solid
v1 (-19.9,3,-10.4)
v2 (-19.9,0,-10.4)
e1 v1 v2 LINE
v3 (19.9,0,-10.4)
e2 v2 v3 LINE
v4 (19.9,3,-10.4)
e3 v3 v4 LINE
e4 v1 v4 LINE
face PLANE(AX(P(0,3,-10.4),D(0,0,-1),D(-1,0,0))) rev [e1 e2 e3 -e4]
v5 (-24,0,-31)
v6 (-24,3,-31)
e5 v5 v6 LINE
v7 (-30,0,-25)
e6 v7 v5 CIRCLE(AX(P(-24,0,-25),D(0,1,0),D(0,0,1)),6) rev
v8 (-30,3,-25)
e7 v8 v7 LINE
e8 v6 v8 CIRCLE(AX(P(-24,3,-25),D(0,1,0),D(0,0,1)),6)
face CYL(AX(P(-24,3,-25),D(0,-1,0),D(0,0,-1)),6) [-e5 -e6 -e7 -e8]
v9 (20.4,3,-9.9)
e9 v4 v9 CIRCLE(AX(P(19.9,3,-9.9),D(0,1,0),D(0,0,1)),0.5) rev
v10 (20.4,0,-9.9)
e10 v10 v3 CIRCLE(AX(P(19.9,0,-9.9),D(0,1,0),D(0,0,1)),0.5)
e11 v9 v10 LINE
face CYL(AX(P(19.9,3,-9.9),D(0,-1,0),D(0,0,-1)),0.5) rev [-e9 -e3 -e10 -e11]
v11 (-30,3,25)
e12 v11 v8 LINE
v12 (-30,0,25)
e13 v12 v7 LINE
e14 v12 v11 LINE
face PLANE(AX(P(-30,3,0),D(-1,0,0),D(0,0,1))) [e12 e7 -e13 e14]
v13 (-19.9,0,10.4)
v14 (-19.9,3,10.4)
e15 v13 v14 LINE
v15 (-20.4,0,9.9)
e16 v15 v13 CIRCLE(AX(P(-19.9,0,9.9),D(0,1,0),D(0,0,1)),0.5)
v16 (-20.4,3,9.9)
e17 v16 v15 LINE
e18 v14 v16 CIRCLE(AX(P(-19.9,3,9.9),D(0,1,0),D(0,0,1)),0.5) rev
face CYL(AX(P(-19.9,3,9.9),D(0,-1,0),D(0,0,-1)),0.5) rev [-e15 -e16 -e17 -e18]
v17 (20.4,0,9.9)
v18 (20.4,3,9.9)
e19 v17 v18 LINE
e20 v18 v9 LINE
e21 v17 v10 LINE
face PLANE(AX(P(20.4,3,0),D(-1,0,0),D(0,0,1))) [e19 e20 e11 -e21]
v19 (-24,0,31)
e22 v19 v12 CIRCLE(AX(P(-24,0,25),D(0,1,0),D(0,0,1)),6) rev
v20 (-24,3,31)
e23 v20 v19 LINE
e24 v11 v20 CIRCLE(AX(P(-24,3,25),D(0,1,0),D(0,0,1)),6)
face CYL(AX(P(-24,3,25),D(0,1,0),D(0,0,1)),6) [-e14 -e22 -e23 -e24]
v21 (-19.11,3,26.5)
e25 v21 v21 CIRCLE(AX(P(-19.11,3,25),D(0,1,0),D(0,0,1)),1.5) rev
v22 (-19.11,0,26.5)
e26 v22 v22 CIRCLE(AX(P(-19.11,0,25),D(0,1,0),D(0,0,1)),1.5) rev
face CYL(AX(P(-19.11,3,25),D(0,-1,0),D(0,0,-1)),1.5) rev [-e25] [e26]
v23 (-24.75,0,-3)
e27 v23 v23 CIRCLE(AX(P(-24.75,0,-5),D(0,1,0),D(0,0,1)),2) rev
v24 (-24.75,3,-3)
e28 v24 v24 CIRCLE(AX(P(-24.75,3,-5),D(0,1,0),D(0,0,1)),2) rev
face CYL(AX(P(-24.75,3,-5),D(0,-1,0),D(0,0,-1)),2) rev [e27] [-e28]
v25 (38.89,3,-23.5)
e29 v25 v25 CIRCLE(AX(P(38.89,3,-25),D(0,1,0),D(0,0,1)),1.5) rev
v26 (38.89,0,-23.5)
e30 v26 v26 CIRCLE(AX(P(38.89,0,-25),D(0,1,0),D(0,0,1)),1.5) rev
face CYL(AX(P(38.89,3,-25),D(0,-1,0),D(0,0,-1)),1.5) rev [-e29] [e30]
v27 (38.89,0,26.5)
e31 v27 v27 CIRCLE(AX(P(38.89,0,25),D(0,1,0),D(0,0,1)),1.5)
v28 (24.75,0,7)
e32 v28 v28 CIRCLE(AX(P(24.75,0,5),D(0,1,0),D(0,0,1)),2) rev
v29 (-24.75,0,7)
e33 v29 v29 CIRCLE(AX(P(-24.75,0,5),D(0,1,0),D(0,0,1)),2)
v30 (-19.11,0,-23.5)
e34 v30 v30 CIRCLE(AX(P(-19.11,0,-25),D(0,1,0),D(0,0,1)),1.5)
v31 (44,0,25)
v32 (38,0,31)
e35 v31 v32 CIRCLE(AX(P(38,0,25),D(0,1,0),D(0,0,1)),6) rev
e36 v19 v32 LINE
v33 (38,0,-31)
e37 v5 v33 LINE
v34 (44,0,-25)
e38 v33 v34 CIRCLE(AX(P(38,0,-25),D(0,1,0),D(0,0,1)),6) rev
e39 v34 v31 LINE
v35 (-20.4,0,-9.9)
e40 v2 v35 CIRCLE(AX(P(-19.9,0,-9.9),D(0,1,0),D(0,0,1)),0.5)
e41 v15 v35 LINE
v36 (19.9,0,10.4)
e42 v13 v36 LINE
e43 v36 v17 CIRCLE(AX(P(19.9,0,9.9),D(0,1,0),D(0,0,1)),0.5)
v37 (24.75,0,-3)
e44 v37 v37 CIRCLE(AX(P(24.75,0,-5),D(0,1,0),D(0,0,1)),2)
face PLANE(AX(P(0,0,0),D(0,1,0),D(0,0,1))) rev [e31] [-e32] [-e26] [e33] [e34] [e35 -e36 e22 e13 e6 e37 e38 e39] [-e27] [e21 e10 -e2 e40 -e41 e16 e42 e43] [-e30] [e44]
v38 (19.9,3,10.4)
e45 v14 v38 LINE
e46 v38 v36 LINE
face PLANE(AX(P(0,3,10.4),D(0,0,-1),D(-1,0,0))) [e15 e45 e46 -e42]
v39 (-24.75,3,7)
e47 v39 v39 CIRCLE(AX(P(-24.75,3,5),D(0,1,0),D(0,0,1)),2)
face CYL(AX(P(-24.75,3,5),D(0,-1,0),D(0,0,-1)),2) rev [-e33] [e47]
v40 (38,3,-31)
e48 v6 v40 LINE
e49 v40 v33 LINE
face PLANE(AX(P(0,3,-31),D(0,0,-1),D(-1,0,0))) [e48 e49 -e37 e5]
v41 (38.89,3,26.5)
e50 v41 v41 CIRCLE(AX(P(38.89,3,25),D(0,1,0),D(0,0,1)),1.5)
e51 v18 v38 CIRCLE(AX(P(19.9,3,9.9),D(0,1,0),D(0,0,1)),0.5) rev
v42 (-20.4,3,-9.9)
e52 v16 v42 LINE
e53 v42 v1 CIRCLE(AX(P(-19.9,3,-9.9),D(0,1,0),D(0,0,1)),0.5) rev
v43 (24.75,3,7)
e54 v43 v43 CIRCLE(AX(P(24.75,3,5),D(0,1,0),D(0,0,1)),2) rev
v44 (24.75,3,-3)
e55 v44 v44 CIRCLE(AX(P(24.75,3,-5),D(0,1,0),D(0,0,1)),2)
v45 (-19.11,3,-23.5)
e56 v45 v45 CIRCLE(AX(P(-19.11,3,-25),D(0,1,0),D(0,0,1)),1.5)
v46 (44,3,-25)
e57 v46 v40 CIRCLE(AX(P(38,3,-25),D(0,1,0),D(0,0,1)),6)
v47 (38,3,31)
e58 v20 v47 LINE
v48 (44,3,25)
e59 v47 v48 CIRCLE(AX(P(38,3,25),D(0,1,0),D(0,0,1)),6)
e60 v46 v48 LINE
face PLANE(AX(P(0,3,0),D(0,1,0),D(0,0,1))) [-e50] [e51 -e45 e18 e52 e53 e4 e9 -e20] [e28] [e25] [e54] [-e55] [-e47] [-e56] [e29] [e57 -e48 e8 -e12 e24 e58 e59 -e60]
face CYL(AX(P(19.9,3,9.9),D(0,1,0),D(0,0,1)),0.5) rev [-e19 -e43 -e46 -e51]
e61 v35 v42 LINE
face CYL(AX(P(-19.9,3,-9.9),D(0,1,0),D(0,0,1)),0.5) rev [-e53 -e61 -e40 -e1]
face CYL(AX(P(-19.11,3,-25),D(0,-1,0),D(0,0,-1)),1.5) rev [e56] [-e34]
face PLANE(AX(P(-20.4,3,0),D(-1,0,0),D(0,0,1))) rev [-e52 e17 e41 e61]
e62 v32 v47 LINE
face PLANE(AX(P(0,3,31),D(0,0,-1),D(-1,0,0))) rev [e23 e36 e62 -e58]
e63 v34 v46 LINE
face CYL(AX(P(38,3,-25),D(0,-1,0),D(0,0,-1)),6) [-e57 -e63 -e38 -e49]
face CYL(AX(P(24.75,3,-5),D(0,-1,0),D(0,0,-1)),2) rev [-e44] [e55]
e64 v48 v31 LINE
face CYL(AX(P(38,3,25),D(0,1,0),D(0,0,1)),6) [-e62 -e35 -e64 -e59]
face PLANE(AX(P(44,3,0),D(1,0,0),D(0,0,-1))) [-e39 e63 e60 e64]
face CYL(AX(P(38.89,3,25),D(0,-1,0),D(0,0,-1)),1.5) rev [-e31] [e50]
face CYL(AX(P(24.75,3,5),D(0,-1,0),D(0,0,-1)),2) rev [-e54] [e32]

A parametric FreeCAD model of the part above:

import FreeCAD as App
import Part
import Sketcher


def edges_at(feature, points):
    """Names of the edges that pass closest to the given points."""
    edges = feature.Shape.Edges
    near = lambda p: min(range(len(edges)), key=lambda i: edges[i].distToShape(Part.Vertex(*p))[0])
    return sorted({f"Edge{near(p) + 1}" for p in points})


def add_polygon(sketch, points):
    """Adds a closed chain of lines whose ends are joined by coincident constraints."""
    first, n = sketch.GeometryCount, len(points)
    for a, b in zip(points, points[1:] + points[:1]):
        sketch.addGeometry(Part.LineSegment(App.Vector(*a, 0), App.Vector(*b, 0)), False)
    for i in range(n):
        sketch.addConstraint(Sketcher.Constraint("Coincident", first + i, 2, first + (i + 1) % n, 1))

doc = App.newDocument("Part")
body = doc.addObject("PartDesign::Body", "Body")

sketch1 = doc.addObject("Sketcher::SketchObject", "Sketch")
body.addObject(sketch1)
sketch1.AttachmentSupport = (doc.XZ_Plane, [""])
sketch1.MapMode = "FlatFace"
add_polygon(sketch1, [(-30, -31), (-30, 31), (44, 31), (44, -31)])
sketch1.addGeometry(Part.Circle(App.Vector(-19.1, 25, 0), App.Vector(0, 0, 1), 1.5), False)
sketch1.addGeometry(Part.Circle(App.Vector(-24.8, 5, 0), App.Vector(0, 0, 1), 2), False)
sketch1.addGeometry(Part.Circle(App.Vector(24.8, 5, 0), App.Vector(0, 0, 1), 2), False)
sketch1.addGeometry(Part.Circle(App.Vector(-24.8, -5, 0), App.Vector(0, 0, 1), 2), False)
add_polygon(sketch1, [(20.4, 10.4), (-20.4, 10.4), (-20.4, -10.4), (20.4, -10.4)])
sketch1.addGeometry(Part.Circle(App.Vector(-19.1, -25, 0), App.Vector(0, 0, 1), 1.5), False)
sketch1.addGeometry(Part.Circle(App.Vector(24.8, -5, 0), App.Vector(0, 0, 1), 2), False)
sketch1.addGeometry(Part.Circle(App.Vector(38.9, -25, 0), App.Vector(0, 0, 1), 1.5), False)
sketch1.addGeometry(Part.Circle(App.Vector(38.9, 25, 0), App.Vector(0, 0, 1), 1.5), False)
sketch1.addConstraint([
    Sketcher.Constraint("Vertical", 0),
    Sketcher.Constraint("Horizontal", 1),
    Sketcher.Constraint("Vertical", 2),
    Sketcher.Constraint("Horizontal", 3),
    Sketcher.Constraint("Horizontal", 8),
    Sketcher.Constraint("Vertical", 9),
    Sketcher.Constraint("Horizontal", 10),
    Sketcher.Constraint("Vertical", 11),
    Sketcher.Constraint("Equal", 5, 6),
    Sketcher.Constraint("Equal", 6, 7),
    Sketcher.Constraint("Equal", 4, 12),
    Sketcher.Constraint("Equal", 7, 13),
    Sketcher.Constraint("Equal", 12, 14),
    Sketcher.Constraint("Equal", 14, 15),
    Sketcher.Constraint("Symmetric", 6, 3, 7, 3, -1, 1),
    Sketcher.Constraint("Symmetric", 5, 3, 13, 3, -1, 1),
    Sketcher.Constraint("Symmetric", 8, 2, 10, 2, -1, 1),
    Sketcher.Constraint("Symmetric", 5, 3, 6, 3, -2),
    Sketcher.Constraint("Symmetric", 4, 3, 12, 3, -1),
    Sketcher.Constraint("Symmetric", 14, 3, 15, 3, -1),
    Sketcher.Constraint("Horizontal", 12, 3, 14, 3),
    Sketcher.Constraint("Diameter", 4, 3.0),
    Sketcher.Constraint("Diameter", 5, 4.0),
    Sketcher.Constraint("DistanceX", 1, 1, 1, 2, 74.0),
    Sketcher.Constraint("DistanceY", 0, 1, 0, 2, 62.0),
    Sketcher.Constraint("DistanceX", 8, 2, 8, 1, 40.8),
    Sketcher.Constraint("DistanceY", 9, 2, 9, 1, 20.8),
    Sketcher.Constraint("DistanceY", -1, 1, 4, 3, 25.0),
    Sketcher.Constraint("DistanceY", -1, 1, 5, 3, 5.0),
    Sketcher.Constraint("DistanceX", 0, 2, -1, 1, 30.0),
    Sketcher.Constraint("DistanceY", -1, 1, 0, 2, 31.0),
    Sketcher.Constraint("DistanceX", 12, 3, 14, 3, 58.0),
    Sketcher.Constraint("DistanceX", 5, 3, 6, 3, 49.5),
    Sketcher.Constraint("DistanceX", 4, 3, -1, 1, 19.11),
])
pad1 = doc.addObject("PartDesign::Pad", "Pad")
body.addObject(pad1)
pad1.Profile = sketch1
pad1.Length = 3
pad1.Reversed = True
doc.recompute()

fillet = doc.addObject("PartDesign::Fillet", "Fillet")
body.addObject(fillet)
fillet.Base = (pad1, edges_at(pad1, [
    (20.4, 1.5, -10.4),
    (-20.4, 1.5, -10.4),
    (-20.4, 1.5, 10.4),
    (20.4, 1.5, 10.4),
]))
fillet.Radius = 0.5
doc.recompute()

fillet2 = doc.addObject("PartDesign::Fillet", "Fillet001")
body.addObject(fillet2)
fillet2.Base = (fillet, edges_at(fillet, [
    (-30, 1.5, 31),
    (-30, 1.5, -31),
    (44, 1.5, -31),
    (44, 1.5, 31),
]))
fillet2.Radius = 6

doc.recompute()
